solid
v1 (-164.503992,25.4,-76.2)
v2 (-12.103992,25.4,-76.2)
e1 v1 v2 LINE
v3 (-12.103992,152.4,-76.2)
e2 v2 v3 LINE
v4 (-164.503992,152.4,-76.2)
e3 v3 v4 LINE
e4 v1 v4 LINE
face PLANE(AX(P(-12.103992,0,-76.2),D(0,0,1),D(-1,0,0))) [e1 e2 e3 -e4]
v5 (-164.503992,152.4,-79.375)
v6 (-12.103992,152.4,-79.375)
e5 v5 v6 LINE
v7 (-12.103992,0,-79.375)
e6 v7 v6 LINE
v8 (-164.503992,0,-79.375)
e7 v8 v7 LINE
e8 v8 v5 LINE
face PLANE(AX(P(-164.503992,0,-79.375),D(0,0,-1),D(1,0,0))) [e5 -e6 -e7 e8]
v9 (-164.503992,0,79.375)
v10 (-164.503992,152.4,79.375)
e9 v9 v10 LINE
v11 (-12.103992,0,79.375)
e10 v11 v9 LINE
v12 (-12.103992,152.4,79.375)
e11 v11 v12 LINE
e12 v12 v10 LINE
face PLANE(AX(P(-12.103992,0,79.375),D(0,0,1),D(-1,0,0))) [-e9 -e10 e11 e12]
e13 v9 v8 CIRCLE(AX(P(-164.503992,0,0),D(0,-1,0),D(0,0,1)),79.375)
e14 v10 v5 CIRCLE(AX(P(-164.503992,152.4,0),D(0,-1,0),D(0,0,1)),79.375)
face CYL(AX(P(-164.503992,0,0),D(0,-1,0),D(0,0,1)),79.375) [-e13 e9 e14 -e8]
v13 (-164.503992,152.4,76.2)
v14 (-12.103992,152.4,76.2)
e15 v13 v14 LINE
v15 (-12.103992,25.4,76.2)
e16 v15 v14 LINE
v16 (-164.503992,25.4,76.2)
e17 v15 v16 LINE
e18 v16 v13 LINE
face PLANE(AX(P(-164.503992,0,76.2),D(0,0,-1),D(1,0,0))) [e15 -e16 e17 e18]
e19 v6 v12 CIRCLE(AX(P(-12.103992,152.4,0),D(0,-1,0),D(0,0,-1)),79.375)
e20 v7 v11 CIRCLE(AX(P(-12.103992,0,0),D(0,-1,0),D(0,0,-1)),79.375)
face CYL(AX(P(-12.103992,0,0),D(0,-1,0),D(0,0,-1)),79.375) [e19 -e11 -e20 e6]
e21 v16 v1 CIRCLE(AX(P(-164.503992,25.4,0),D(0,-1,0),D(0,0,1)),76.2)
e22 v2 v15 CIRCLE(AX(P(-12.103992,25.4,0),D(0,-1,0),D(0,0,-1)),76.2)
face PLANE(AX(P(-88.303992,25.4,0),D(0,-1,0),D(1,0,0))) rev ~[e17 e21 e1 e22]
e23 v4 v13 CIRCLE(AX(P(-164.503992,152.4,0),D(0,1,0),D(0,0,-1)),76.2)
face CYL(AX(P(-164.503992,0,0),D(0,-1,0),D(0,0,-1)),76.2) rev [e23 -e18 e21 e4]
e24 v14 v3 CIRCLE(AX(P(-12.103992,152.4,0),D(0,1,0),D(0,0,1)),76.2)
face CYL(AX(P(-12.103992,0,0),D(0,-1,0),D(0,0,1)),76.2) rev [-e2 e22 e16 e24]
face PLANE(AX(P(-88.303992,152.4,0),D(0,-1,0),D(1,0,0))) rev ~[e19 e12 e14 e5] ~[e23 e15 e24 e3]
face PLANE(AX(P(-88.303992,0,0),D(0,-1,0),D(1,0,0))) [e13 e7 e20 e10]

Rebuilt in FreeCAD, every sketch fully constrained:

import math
import FreeCAD as App
import Part
import Sketcher
Q = App.Units.Quantity

doc = App.newDocument("Part")
body = doc.addObject("PartDesign::Body", "Body")

# Sketch on XZ plane
sketch1 = body.newObject("Sketcher::SketchObject", "Sketch")
sketch1.AttachmentSupport = (doc.getObject("XZ_Plane"), [""])
sketch1.MapMode = "FlatFace"
sketch1.addGeometry(Part.LineSegment(App.Vector(-164.503992, -79.375, 0), App.Vector(-12.103992, -79.375, 0)), False)
sketch1.addGeometry(Part.ArcOfCircle(Part.Circle(App.Vector(-12.103992, 0, 0), App.Vector(0, 0, 1), 79.375), math.radians(-90), math.radians(90)), False)
sketch1.addGeometry(Part.LineSegment(App.Vector(-12.103992, 79.375, 0), App.Vector(-164.503992, 79.375, 0)), False)
sketch1.addGeometry(Part.ArcOfCircle(Part.Circle(App.Vector(-164.503992, 0, 0), App.Vector(0, 0, 1), 79.375), math.radians(90), math.radians(270)), False)
sketch1.addGeometry(Part.LineSegment(App.Vector(-164.503992, 76.2, 0), App.Vector(-12.103992, 76.2, 0)), False)
sketch1.addGeometry(Part.ArcOfCircle(Part.Circle(App.Vector(-12.103992, 0, 0), App.Vector(0, 0, 1), 76.2), math.radians(-90), math.radians(90)), False)
sketch1.addGeometry(Part.LineSegment(App.Vector(-12.103992, -76.2, 0), App.Vector(-164.503992, -76.2, 0)), False)
sketch1.addGeometry(Part.ArcOfCircle(Part.Circle(App.Vector(-164.503992, 0, 0), App.Vector(0, 0, 1), 76.2), math.radians(90), math.radians(270)), False)
sketch1.addConstraint(Sketcher.Constraint("Tangent", 0, 2, 1, 1))
sketch1.addConstraint(Sketcher.Constraint("Tangent", 1, 2, 2, 1))
sketch1.addConstraint(Sketcher.Constraint("Tangent", 2, 2, 3, 1))
sketch1.addConstraint(Sketcher.Constraint("Tangent", 3, 2, 0, 1))
sketch1.addConstraint(Sketcher.Constraint("Tangent", 4, 2, 5, 2))
sketch1.addConstraint(Sketcher.Constraint("Tangent", 5, 1, 6, 1))
sketch1.addConstraint(Sketcher.Constraint("Tangent", 6, 2, 7, 2))
sketch1.addConstraint(Sketcher.Constraint("Tangent", 7, 1, 4, 1))
sketch1.addConstraint(Sketcher.Constraint("Horizontal", 0))
sketch1.addConstraint(Sketcher.Constraint("Horizontal", 2))
sketch1.addConstraint(Sketcher.Constraint("Horizontal", 4))
sketch1.addConstraint(Sketcher.Constraint("Horizontal", 6))
sketch1.addConstraint(Sketcher.Constraint("Coincident", 5, 3, 1, 3))
sketch1.addConstraint(Sketcher.Constraint("PointOnObject", 1, 3, -1))
sketch1.addConstraint(Sketcher.Constraint("Vertical", 7, 3, 2, 2))
sketch1.addConstraint(Sketcher.Constraint("Radius", 5, Q("3 in")))
sketch1.addConstraint(Sketcher.Constraint("DistanceX", 0, 1, 0, 2, Q("6 in")))
sketch1.addConstraint(Sketcher.Constraint("Radius", 1, Q("3.125 in")))
sketch1.addConstraint(Sketcher.Constraint("DistanceX", 1, 3, -1, 1, 12.103992))
pad1 = body.newObject("PartDesign::Pad", "Pad")
pad1.Profile = sketch1
pad1.Length = Q("6 in")
pad1.Reversed = True

# Sketch on XZ plane
sketch2 = body.newObject("Sketcher::SketchObject", "Sketch001")
sketch2.AttachmentSupport = (doc.getObject("XZ_Plane"), [""])
sketch2.MapMode = "FlatFace"
sketch2.addGeometry(Part.LineSegment(App.Vector(-164.503992, -76.2, 0), App.Vector(-12.103992, -76.2, 0)), False)
sketch2.addGeometry(Part.ArcOfCircle(Part.Circle(App.Vector(-12.103992, 0, 0), App.Vector(0, 0, 1), 76.2), math.radians(-90), math.radians(90)), False)
sketch2.addGeometry(Part.LineSegment(App.Vector(-12.103992, 76.2, 0), App.Vector(-164.503992, 76.2, 0)), False)
sketch2.addGeometry(Part.ArcOfCircle(Part.Circle(App.Vector(-164.503992, 0, 0), App.Vector(0, 0, 1), 76.2), math.radians(90), math.radians(270)), False)
sketch2.addConstraint(Sketcher.Constraint("Tangent", 0, 2, 1, 1))
sketch2.addConstraint(Sketcher.Constraint("Tangent", 1, 2, 2, 1))
sketch2.addConstraint(Sketcher.Constraint("Tangent", 2, 2, 3, 1))
sketch2.addConstraint(Sketcher.Constraint("Tangent", 3, 2, 0, 1))
sketch2.addConstraint(Sketcher.Constraint("Horizontal", 0))
sketch2.addConstraint(Sketcher.Constraint("Horizontal", 2))
sketch2.addConstraint(Sketcher.Constraint("PointOnObject", 1, 3, -1))
sketch2.addConstraint(Sketcher.Constraint("Radius", 1, Q("3 in")))
sketch2.addConstraint(Sketcher.Constraint("DistanceX", 0, 1, 0, 2, Q("6 in")))
sketch2.addConstraint(Sketcher.Constraint("DistanceX", 1, 3, -1, 1, 12.103992))
pad2 = body.newObject("PartDesign::Pad", "Pad001")
pad2.Profile = sketch2
pad2.Length = Q("1 in")
pad2.Reversed = True

doc.recompute()
